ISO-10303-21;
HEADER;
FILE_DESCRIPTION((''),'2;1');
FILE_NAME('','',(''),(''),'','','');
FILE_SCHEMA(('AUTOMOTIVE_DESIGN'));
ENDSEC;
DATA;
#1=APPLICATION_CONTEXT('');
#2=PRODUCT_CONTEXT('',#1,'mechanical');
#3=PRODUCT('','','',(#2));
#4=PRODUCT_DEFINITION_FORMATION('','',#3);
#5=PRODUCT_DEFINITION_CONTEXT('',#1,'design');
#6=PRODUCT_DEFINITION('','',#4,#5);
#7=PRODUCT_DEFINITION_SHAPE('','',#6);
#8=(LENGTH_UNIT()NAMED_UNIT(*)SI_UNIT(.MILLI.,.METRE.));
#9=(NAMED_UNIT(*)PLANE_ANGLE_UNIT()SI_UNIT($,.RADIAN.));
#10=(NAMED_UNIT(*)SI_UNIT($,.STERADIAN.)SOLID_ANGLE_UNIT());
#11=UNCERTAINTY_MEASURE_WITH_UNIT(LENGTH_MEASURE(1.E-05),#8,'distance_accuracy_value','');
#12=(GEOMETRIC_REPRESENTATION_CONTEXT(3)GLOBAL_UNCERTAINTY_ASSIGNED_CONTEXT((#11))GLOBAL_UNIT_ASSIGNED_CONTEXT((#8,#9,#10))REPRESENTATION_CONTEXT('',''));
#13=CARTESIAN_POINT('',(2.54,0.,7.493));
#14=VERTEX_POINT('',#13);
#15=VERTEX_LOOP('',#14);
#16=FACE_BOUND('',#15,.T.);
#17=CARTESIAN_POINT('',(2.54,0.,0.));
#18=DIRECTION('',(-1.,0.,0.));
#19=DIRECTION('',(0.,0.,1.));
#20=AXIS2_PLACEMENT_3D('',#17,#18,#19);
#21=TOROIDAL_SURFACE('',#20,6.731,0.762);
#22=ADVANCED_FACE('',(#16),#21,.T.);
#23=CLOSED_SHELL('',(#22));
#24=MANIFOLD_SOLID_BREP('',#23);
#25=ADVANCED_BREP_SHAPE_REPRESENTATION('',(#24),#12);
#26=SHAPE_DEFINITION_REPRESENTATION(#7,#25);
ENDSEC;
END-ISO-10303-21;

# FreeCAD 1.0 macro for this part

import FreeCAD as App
import Part
import Sketcher
from FreeCAD import Vector
Q = App.Units.Quantity

doc = App.newDocument("Part")
body = doc.addObject("PartDesign::Body", "Body")

sketch1 = body.newObject("Sketcher::SketchObject", "Sketch")
sketch1.AttachmentSupport = (doc.getObject("XY_Plane"), [""])
sketch1.MapMode = "FlatFace"
sketch1.addGeometry(Part.Circle(Vector(2.54, -6.731, 0), Vector(0, 0, 1), 0.762), False)
sketch1.addConstraint([
    Sketcher.Constraint("Diameter", 0, Q("0.06 in")),
    Sketcher.Constraint("DistanceX", -1, 1, 0, 3, Q("0.1 in")),
    Sketcher.Constraint("DistanceY", 0, 3, -1, 1, Q("0.265 in")),
])
revolution = body.newObject("PartDesign::Revolution", "Revolution")
revolution.Profile = sketch1
revolution.ReferenceAxis = (sketch1, ["H_Axis"])
revolution.Angle = 360

doc.recompute()
